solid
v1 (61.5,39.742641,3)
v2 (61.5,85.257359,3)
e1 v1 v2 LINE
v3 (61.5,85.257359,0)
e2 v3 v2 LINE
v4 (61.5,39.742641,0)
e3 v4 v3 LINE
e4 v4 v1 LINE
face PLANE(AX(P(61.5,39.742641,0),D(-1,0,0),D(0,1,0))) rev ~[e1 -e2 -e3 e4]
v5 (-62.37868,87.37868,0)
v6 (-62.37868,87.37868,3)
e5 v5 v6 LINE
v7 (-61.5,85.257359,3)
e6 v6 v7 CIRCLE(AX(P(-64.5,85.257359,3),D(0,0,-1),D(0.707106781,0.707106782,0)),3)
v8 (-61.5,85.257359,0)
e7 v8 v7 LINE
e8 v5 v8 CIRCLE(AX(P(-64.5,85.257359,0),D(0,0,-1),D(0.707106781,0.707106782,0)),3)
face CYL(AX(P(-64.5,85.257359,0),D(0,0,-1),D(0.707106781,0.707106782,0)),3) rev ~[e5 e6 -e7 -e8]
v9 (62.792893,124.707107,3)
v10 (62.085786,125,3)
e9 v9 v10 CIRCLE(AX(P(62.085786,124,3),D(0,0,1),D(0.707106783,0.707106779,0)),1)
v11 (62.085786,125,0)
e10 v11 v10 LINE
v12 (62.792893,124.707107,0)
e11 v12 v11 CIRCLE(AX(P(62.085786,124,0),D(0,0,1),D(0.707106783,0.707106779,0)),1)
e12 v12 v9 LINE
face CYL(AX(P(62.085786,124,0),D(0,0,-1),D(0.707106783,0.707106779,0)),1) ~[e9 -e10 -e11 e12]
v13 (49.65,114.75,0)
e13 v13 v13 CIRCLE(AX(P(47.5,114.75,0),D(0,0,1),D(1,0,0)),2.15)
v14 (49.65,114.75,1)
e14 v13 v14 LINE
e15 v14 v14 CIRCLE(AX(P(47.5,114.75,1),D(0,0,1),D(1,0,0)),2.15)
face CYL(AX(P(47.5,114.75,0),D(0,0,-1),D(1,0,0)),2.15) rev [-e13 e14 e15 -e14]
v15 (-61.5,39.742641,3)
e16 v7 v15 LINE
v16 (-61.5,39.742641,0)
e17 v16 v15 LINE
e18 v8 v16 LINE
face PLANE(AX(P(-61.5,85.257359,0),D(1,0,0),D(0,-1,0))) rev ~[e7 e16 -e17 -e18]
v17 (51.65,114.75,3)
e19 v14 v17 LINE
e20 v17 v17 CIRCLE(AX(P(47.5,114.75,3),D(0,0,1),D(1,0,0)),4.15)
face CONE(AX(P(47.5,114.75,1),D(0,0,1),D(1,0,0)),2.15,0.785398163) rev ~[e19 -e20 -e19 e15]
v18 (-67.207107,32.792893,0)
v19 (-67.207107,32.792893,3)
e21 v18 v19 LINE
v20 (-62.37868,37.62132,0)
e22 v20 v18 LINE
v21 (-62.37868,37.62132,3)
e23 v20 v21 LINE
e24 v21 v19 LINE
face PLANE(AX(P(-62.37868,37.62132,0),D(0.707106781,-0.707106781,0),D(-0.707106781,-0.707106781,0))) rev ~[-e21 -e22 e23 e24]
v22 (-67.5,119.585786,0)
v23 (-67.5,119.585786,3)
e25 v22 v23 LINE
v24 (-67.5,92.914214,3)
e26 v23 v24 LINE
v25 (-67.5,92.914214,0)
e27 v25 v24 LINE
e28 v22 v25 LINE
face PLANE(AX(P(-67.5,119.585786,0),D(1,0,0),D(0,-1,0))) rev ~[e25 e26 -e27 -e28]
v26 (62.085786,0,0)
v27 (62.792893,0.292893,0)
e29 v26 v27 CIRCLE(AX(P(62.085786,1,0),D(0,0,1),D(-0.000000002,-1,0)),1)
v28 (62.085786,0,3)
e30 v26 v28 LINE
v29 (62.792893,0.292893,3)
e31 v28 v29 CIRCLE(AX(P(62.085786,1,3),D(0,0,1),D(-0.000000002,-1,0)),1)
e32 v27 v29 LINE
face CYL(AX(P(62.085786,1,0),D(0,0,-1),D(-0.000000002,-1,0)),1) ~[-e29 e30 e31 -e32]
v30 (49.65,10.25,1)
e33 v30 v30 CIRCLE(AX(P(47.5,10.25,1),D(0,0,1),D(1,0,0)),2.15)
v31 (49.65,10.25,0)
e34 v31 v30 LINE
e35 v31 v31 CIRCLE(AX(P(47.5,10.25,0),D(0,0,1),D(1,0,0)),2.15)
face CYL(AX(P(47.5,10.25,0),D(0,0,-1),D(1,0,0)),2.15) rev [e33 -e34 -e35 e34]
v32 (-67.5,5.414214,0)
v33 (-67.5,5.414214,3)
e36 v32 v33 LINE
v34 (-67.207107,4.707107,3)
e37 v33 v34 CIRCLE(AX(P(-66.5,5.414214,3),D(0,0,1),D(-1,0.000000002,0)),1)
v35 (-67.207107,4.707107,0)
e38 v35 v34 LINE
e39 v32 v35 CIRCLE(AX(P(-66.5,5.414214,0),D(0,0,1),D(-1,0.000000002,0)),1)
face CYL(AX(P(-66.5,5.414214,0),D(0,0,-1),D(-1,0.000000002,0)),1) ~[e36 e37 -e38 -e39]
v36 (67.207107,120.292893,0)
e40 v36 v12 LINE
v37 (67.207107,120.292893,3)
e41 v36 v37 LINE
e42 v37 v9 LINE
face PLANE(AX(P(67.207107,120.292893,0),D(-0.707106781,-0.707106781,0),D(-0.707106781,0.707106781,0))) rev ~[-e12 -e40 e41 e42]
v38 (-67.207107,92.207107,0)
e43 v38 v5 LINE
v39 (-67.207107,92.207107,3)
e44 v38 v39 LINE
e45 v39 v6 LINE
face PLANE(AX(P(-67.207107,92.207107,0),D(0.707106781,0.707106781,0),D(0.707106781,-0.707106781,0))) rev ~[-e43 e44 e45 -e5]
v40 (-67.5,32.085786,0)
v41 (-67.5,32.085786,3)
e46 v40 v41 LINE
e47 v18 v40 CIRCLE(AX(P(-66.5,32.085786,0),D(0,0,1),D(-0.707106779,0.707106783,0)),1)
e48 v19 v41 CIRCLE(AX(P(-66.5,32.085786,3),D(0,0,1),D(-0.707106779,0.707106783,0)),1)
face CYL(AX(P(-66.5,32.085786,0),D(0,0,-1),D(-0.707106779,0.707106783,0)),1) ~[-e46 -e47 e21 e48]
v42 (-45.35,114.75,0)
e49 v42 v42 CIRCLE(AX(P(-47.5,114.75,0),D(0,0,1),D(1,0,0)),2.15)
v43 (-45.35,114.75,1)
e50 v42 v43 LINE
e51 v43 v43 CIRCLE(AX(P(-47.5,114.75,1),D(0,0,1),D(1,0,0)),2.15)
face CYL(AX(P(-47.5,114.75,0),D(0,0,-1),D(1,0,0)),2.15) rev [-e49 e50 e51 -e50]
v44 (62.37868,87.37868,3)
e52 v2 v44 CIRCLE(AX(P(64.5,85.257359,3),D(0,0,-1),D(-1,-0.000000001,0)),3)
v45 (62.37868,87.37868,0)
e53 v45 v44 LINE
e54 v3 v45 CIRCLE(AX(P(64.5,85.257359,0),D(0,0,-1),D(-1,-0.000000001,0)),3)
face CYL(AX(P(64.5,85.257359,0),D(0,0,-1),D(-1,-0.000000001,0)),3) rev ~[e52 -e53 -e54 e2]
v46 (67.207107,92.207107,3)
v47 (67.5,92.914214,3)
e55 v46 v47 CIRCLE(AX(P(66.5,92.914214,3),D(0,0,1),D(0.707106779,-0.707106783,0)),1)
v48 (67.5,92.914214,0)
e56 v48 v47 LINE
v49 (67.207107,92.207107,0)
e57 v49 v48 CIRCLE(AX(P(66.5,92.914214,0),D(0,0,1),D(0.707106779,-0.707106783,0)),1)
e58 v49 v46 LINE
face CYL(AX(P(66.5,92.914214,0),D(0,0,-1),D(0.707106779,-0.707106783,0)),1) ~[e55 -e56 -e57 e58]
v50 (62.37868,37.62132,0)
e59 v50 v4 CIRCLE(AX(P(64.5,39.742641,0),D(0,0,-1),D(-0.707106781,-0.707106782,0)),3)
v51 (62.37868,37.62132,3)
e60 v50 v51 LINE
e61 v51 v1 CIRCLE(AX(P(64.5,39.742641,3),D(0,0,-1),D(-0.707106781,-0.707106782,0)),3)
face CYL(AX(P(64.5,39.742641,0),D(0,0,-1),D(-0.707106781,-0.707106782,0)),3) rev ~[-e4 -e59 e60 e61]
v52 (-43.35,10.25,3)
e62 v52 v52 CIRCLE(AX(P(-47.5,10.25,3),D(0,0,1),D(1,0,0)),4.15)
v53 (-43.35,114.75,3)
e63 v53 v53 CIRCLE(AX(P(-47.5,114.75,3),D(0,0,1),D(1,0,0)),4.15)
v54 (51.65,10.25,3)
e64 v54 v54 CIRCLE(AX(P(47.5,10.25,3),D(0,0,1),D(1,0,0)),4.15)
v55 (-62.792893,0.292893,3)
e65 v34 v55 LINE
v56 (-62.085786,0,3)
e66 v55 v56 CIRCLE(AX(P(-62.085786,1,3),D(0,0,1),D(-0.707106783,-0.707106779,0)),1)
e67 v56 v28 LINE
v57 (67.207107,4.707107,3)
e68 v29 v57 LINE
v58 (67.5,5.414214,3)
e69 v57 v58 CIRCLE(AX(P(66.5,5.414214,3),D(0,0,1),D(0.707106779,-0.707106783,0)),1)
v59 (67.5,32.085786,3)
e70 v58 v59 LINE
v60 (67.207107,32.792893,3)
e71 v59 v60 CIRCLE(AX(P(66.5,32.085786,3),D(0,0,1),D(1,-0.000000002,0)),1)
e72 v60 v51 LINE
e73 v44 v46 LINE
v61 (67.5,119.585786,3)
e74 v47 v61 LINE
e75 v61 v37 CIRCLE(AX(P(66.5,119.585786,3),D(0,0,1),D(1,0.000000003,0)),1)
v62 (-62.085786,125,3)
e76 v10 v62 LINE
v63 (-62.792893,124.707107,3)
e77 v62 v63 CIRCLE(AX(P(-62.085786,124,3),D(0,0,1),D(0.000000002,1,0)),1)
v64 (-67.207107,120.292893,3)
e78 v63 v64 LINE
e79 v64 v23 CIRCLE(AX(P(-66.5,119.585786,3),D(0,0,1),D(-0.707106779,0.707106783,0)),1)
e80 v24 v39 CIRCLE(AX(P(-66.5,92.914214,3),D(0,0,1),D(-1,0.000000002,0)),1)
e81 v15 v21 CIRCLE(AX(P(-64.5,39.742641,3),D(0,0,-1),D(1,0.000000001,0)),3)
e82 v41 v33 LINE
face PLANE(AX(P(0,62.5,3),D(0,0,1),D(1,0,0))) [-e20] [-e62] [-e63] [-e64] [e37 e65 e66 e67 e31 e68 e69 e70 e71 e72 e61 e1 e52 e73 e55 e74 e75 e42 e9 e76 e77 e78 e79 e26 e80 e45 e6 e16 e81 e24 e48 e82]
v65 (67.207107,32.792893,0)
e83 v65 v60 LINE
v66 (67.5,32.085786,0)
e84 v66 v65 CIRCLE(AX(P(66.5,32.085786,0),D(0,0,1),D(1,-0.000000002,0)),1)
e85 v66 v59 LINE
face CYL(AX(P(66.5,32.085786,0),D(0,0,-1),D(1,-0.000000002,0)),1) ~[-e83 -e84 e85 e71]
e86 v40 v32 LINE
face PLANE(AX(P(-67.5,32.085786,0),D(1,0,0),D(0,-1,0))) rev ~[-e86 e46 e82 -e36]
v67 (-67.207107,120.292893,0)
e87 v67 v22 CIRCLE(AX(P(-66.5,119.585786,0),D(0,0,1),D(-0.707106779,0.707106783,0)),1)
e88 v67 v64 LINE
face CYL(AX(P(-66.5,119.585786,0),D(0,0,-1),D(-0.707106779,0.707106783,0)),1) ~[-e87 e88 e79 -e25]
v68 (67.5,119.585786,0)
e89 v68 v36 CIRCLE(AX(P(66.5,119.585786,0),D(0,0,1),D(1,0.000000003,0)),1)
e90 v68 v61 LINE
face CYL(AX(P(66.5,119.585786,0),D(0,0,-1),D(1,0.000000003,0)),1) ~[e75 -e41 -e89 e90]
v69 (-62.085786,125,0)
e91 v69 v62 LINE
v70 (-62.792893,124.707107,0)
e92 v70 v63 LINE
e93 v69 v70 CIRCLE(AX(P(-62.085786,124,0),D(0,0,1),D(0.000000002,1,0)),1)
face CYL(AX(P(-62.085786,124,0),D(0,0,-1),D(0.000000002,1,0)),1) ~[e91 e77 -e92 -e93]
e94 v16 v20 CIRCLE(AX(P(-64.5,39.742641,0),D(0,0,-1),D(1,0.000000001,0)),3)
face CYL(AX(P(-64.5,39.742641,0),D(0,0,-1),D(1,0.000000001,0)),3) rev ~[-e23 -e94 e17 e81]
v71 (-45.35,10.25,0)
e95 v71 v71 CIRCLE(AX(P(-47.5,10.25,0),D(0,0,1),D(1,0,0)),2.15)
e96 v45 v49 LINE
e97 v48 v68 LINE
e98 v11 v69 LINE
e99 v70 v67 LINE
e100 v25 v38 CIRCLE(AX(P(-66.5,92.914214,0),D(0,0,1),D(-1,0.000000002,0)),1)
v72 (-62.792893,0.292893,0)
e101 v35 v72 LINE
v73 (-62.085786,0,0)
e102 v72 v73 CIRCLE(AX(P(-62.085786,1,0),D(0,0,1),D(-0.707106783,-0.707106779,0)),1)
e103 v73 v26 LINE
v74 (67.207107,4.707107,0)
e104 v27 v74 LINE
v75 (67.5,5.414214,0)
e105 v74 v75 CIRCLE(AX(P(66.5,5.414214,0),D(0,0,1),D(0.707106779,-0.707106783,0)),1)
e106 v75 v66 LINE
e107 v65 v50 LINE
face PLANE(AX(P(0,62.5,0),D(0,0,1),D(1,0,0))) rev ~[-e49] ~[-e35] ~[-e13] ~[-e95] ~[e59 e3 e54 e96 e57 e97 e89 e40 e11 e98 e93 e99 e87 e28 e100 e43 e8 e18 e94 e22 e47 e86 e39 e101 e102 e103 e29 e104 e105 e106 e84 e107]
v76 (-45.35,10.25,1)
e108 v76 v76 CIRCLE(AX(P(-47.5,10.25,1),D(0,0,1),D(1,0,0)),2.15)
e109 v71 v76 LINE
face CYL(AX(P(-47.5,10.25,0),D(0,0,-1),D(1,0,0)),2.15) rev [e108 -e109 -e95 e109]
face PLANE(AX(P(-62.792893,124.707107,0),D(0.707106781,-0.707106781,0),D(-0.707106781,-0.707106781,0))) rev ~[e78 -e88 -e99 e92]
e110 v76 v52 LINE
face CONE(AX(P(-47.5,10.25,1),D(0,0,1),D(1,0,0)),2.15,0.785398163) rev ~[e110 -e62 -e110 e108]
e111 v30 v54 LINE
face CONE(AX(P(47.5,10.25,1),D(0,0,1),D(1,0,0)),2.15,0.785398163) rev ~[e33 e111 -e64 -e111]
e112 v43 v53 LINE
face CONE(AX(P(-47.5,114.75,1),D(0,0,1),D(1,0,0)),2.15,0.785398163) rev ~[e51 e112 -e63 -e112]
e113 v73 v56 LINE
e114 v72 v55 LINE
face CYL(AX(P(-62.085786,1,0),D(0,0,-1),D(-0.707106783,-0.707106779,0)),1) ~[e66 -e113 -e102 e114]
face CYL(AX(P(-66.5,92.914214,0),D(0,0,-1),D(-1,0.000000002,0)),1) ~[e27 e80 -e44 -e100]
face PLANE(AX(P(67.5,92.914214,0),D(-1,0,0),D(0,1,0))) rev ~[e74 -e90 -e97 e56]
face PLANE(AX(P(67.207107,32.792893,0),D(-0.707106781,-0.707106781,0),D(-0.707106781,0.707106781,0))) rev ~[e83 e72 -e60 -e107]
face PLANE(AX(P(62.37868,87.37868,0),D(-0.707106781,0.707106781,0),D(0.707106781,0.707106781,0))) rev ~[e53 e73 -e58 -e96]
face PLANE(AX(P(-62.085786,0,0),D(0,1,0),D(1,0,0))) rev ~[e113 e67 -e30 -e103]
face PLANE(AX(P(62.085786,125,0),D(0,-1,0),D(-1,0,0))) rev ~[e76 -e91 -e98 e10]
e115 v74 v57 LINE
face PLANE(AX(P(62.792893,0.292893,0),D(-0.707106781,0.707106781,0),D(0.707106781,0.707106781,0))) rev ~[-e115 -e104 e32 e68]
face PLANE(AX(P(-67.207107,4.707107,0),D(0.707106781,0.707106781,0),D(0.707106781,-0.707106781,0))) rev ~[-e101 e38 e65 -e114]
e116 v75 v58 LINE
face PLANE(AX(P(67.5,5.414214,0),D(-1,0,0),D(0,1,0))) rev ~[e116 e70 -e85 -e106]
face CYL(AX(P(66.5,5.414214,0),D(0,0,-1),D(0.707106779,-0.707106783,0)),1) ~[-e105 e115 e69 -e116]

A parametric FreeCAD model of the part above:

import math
import FreeCAD as App
import Part
import Sketcher

V = App.Vector


def edges_at(feature, points):
    """Names of the edges that pass closest to the given points."""
    edges = feature.Shape.Edges
    near = lambda p: min(range(len(edges)), key=lambda i: edges[i].distToShape(Part.Vertex(*p))[0])
    return sorted({f"Edge{near(p) + 1}" for p in points})

doc = App.newDocument("Part")
body = doc.addObject("PartDesign::Body", "Body")

sketch1 = body.newObject("Sketcher::SketchObject", "Sketch")
sketch1.AttachmentSupport = (doc.getObject("XY_Plane"), [""])
sketch1.MapMode = "FlatFace"
sketch1.addGeometry([
    Part.LineSegment(V(-61.5, 85.257359, 0), V(-61.5, 39.742641, 0)),
    Part.ArcOfCircle(Part.Circle(V(-64.5, 39.742641, 0), V(0, 0, 1), 3), math.radians(-45), math.radians(0)),
    Part.LineSegment(V(-62.37868, 37.62132, 0), V(-67.207107, 32.792893, 0)),
    Part.ArcOfCircle(Part.Circle(V(-66.5, 32.085786, 0), V(0, 0, 1), 1), math.radians(135), math.radians(180)),
    Part.LineSegment(V(-67.5, 32.085786, 0), V(-67.5, 5.414214, 0)),
    Part.ArcOfCircle(Part.Circle(V(-66.5, 5.414214, 0), V(0, 0, 1), 1), math.radians(180), math.radians(225)),
    Part.LineSegment(V(-67.207107, 4.707107, 0), V(-62.792893, 0.292893, 0)),
    Part.ArcOfCircle(Part.Circle(V(-62.085786, 1, 0), V(0, 0, 1), 1), math.radians(-135), math.radians(-90)),
    Part.LineSegment(V(-62.085786, 0, 0), V(62.085786, 0, 0)),
    Part.ArcOfCircle(Part.Circle(V(62.085786, 1, 0), V(0, 0, 1), 1), math.radians(-90), math.radians(-45)),
    Part.LineSegment(V(62.792893, 0.292893, 0), V(67.207107, 4.707107, 0)),
    Part.ArcOfCircle(Part.Circle(V(66.5, 5.414214, 0), V(0, 0, 1), 1), math.radians(-45), math.radians(0)),
    Part.LineSegment(V(67.5, 5.414214, 0), V(67.5, 32.085786, 0)),
    Part.ArcOfCircle(Part.Circle(V(66.5, 32.085786, 0), V(0, 0, 1), 1), math.radians(0), math.radians(45)),
    Part.LineSegment(V(67.207107, 32.792893, 0), V(62.37868, 37.62132, 0)),
    Part.ArcOfCircle(Part.Circle(V(64.5, 39.742641, 0), V(0, 0, 1), 3), math.radians(180), math.radians(225)),
    Part.LineSegment(V(61.5, 39.742641, 0), V(61.5, 85.257359, 0)),
    Part.ArcOfCircle(Part.Circle(V(64.5, 85.257359, 0), V(0, 0, 1), 3), math.radians(135), math.radians(180)),
    Part.LineSegment(V(62.37868, 87.37868, 0), V(67.207107, 92.207107, 0)),
    Part.ArcOfCircle(Part.Circle(V(66.5, 92.914214, 0), V(0, 0, 1), 1), math.radians(-45), math.radians(0)),
    Part.LineSegment(V(67.5, 92.914214, 0), V(67.5, 119.585786, 0)),
    Part.ArcOfCircle(Part.Circle(V(66.5, 119.585786, 0), V(0, 0, 1), 1), math.radians(0), math.radians(45)),
    Part.LineSegment(V(67.207107, 120.292893, 0), V(62.792893, 124.707107, 0)),
    Part.ArcOfCircle(Part.Circle(V(62.085786, 124, 0), V(0, 0, 1), 1), math.radians(45), math.radians(90)),
    Part.LineSegment(V(62.085786, 125, 0), V(-62.085786, 125, 0)),
    Part.ArcOfCircle(Part.Circle(V(-62.085786, 124, 0), V(0, 0, 1), 1), math.radians(90), math.radians(135)),
    Part.LineSegment(V(-62.792893, 124.707107, 0), V(-67.207107, 120.292893, 0)),
    Part.ArcOfCircle(Part.Circle(V(-66.5, 119.585786, 0), V(0, 0, 1), 1), math.radians(135), math.radians(180)),
    Part.LineSegment(V(-67.5, 119.585786, 0), V(-67.5, 92.914214, 0)),
    Part.ArcOfCircle(Part.Circle(V(-66.5, 92.914214, 0), V(0, 0, 1), 1), math.radians(180), math.radians(225)),
    Part.LineSegment(V(-67.207107, 92.207107, 0), V(-62.37868, 87.37868, 0)),
    Part.ArcOfCircle(Part.Circle(V(-64.5, 85.257359, 0), V(0, 0, 1), 3), math.radians(0), math.radians(45)),
    Part.Circle(V(-47.5, 10.25, 0), V(0, 0, 1), 2.15),
    Part.Circle(V(47.5, 10.25, 0), V(0, 0, 1), 2.15),
    Part.Circle(V(-47.5, 114.75, 0), V(0, 0, 1), 2.15),
    Part.Circle(V(47.5, 114.75, 0), V(0, 0, 1), 2.15),
], False)
sketch1.addConstraint([
    Sketcher.Constraint("Tangent", 0, 2, 1, 2),
    Sketcher.Constraint("Tangent", 1, 1, 2, 1),
    Sketcher.Constraint("Tangent", 2, 2, 3, 1),
    Sketcher.Constraint("Tangent", 3, 2, 4, 1),
    Sketcher.Constraint("Tangent", 4, 2, 5, 1),
    Sketcher.Constraint("Tangent", 5, 2, 6, 1),
    Sketcher.Constraint("Tangent", 6, 2, 7, 1),
    Sketcher.Constraint("Tangent", 7, 2, 8, 1),
    Sketcher.Constraint("Tangent", 8, 2, 9, 1),
    Sketcher.Constraint("Tangent", 9, 2, 10, 1),
    Sketcher.Constraint("Tangent", 10, 2, 11, 1),
    Sketcher.Constraint("Tangent", 11, 2, 12, 1),
    Sketcher.Constraint("Tangent", 12, 2, 13, 1),
    Sketcher.Constraint("Tangent", 13, 2, 14, 1),
    Sketcher.Constraint("Tangent", 14, 2, 15, 2),
    Sketcher.Constraint("Tangent", 15, 1, 16, 1),
    Sketcher.Constraint("Tangent", 16, 2, 17, 2),
    Sketcher.Constraint("Tangent", 17, 1, 18, 1),
    Sketcher.Constraint("Tangent", 18, 2, 19, 1),
    Sketcher.Constraint("Tangent", 19, 2, 20, 1),
    Sketcher.Constraint("Tangent", 20, 2, 21, 1),
    Sketcher.Constraint("Tangent", 21, 2, 22, 1),
    Sketcher.Constraint("Tangent", 22, 2, 23, 1),
    Sketcher.Constraint("Tangent", 23, 2, 24, 1),
    Sketcher.Constraint("Tangent", 24, 2, 25, 1),
    Sketcher.Constraint("Tangent", 25, 2, 26, 1),
    Sketcher.Constraint("Tangent", 26, 2, 27, 1),
    Sketcher.Constraint("Tangent", 27, 2, 28, 1),
    Sketcher.Constraint("Tangent", 28, 2, 29, 1),
    Sketcher.Constraint("Tangent", 29, 2, 30, 1),
    Sketcher.Constraint("Tangent", 30, 2, 31, 2),
    Sketcher.Constraint("Tangent", 31, 1, 0, 1),
    Sketcher.Constraint("Vertical", 0),
    Sketcher.Constraint("Vertical", 4),
    Sketcher.Constraint("Horizontal", 8),
    Sketcher.Constraint("Vertical", 12),
    Sketcher.Constraint("Vertical", 16),
    Sketcher.Constraint("Vertical", 20),
    Sketcher.Constraint("Horizontal", 24),
    Sketcher.Constraint("Vertical", 28),
    Sketcher.Constraint("Equal", 3, 5),
    Sketcher.Constraint("Equal", 5, 7),
    Sketcher.Constraint("Equal", 7, 9),
    Sketcher.Constraint("Equal", 9, 11),
    Sketcher.Constraint("Equal", 11, 13),
    Sketcher.Constraint("Equal", 1, 15),
    Sketcher.Constraint("Equal", 15, 17),
    Sketcher.Constraint("Equal", 13, 19),
    Sketcher.Constraint("Equal", 19, 21),
    Sketcher.Constraint("Equal", 21, 23),
    Sketcher.Constraint("Equal", 23, 25),
    Sketcher.Constraint("Equal", 25, 27),
    Sketcher.Constraint("Equal", 27, 29),
    Sketcher.Constraint("Equal", 17, 31),
    Sketcher.Constraint("Equal", 32, 33),
    Sketcher.Constraint("Equal", 33, 34),
    Sketcher.Constraint("Equal", 34, 35),
    Sketcher.Constraint("Symmetric", 7, 2, 8, 2, -1, 1),
    Sketcher.Constraint("Symmetric", 5, 3, 11, 3, -2),
    Sketcher.Constraint("Symmetric", 1, 3, 15, 3, -2),
    Sketcher.Constraint("Symmetric", 21, 3, 27, 3, -2),
    Sketcher.Constraint("Symmetric", 32, 3, 33, 3, -2),
    Sketcher.Constraint("Symmetric", 34, 3, 35, 3, -2),
    Sketcher.Constraint("Symmetric", 18, 2, 29, 2, -2),
    Sketcher.Constraint("Perpendicular", 2, 6),
    Sketcher.Constraint("Perpendicular", 6, 10),
    Sketcher.Constraint("Perpendicular", 10, 14),
    Sketcher.Constraint("Perpendicular", 14, 18),
    Sketcher.Constraint("Perpendicular", 18, 22),
    Sketcher.Constraint("Perpendicular", 22, 26),
    Sketcher.Constraint("Vertical", 13, 3, 19, 3),
    Sketcher.Constraint("Vertical", 9, 3, 23, 3),
    Sketcher.Constraint("Vertical", 32, 3, 34, 3),
    Sketcher.Constraint("Equal", 12, 20),
    Sketcher.Constraint("Radius", 1, 3.0),
    Sketcher.Constraint("Radius", 3, 1.0),
    Sketcher.Constraint("Diameter", 32, 4.3),
    Sketcher.Constraint("DistanceY", -1, 1, 23, 3, 124.0),
    Sketcher.Constraint("DistanceX", 3, 3, 1, 3, 2.0),
    Sketcher.Constraint("DistanceX", 5, 3, 11, 3, 133.0),
    Sketcher.Constraint("DistanceX", 5, 3, 32, 3, 19.0),
    Sketcher.Constraint("DistanceY", 11, 3, 19, 3, 87.5),
    Sketcher.Constraint("DistanceY", -1, 1, 32, 3, 10.25),
    Sketcher.Constraint("DistanceY", -1, 1, 34, 3, 114.75),
    Sketcher.Constraint("DistanceY", 0, 2, 0, 1, 45.514719),
])
pad1 = body.newObject("PartDesign::Pad", "Pad")
pad1.Profile = sketch1
pad1.Length = 3
doc.recompute()

chamfer = body.newObject("PartDesign::Chamfer", "Chamfer")
chamfer.Base = (pad1, edges_at(pad1, [
    (45.35, 10.25, 3),
    (-49.65, 10.25, 3),
    (-49.65, 114.75, 3),
    (45.35, 114.75, 3),
]))
chamfer.Size = 2

doc.recompute()
